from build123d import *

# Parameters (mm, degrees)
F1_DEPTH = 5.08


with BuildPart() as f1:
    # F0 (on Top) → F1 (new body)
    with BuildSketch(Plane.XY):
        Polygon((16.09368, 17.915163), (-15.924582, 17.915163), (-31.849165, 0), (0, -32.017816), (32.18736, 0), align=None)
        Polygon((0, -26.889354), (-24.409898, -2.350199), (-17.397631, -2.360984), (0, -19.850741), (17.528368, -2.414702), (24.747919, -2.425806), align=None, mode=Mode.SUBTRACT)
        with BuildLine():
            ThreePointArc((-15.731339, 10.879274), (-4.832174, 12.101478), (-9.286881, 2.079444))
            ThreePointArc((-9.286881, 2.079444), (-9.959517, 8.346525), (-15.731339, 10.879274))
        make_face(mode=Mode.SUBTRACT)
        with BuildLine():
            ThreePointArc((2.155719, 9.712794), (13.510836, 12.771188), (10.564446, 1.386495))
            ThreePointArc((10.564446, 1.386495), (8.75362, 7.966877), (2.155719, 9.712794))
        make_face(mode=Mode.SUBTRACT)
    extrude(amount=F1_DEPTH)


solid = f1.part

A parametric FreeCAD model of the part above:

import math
import FreeCAD as App
import Part
import Sketcher
Q = App.Units.Quantity


def add_polygon(sketch, points):
    """Adds a closed chain of lines whose ends are joined by coincident constraints."""
    first, n = sketch.GeometryCount, len(points)
    for a, b in zip(points, points[1:] + points[:1]):
        sketch.addGeometry(Part.LineSegment(App.Vector(*a, 0), App.Vector(*b, 0)), False)
    for i in range(n):
        sketch.addConstraint(Sketcher.Constraint("Coincident", first + i, 2, first + (i + 1) % n, 1))

doc = App.newDocument("Part")
body = doc.addObject("PartDesign::Body", "Body")

# Sketch on XY plane
sketch1 = doc.addObject("Sketcher::SketchObject", "Sketch")
body.addObject(sketch1)
sketch1.AttachmentSupport = (doc.XY_Plane, [""])
sketch1.MapMode = "FlatFace"
add_polygon(sketch1, [(16.09368, 17.915163), (-15.924582, 17.915163), (-31.849165, 0), (0, -32.017816), (32.18736, 0)])  # lines 0-4
add_polygon(sketch1, [(24.747919, -2.425806), (0, -26.889354), (-24.409898, -2.350199), (-17.397631, -2.360984), (0, -19.850741), (17.528368, -2.414702)])  # lines 5-10
sketch1.addGeometry(Part.ArcOfCircle(Part.Circle(App.Vector(-15.030851, 4.63259, 0), App.Vector(0, 0, 1), 6.285837), math.radians(-23.964737), math.radians(96.398276)), False)  # 11
sketch1.addGeometry(Part.ArcOfCircle(Part.Circle(App.Vector(-9.931513, 8.367034, 0), App.Vector(0, 0, 1), 6.320549), math.radians(-84.146232), math.radians(156.579771)), False)  # 12
sketch1.addGeometry(Part.ArcOfCircle(Part.Circle(App.Vector(3.936307, 3.101875, 0), App.Vector(0, 0, 1), 6.846514), math.radians(-14.509936), math.radians(105.07435)), False)  # 13
sketch1.addGeometry(Part.ArcOfCircle(Part.Circle(App.Vector(8.723572, 7.936532, 0), App.Vector(0, 0, 1), 6.803808), math.radians(-74.302093), math.radians(164.866507)), False)  # 14
sketch1.addConstraint(Sketcher.Constraint("Coincident", 11, 1, 12, 1))
sketch1.addConstraint(Sketcher.Constraint("Coincident", 12, 2, 11, 2))
sketch1.addConstraint(Sketcher.Constraint("Coincident", 13, 1, 14, 1))
sketch1.addConstraint(Sketcher.Constraint("Coincident", 14, 2, 13, 2))
sketch1.addConstraint(Sketcher.Constraint("Horizontal", 0))
sketch1.addConstraint(Sketcher.Constraint("PointOnObject", 1, 2, -1))
sketch1.addConstraint(Sketcher.Constraint("PointOnObject", 2, 2, -2))
sketch1.addConstraint(Sketcher.Constraint("PointOnObject", 3, 2, -1))
sketch1.addConstraint(Sketcher.Constraint("PointOnObject", 5, 2, -2))
sketch1.addConstraint(Sketcher.Constraint("PointOnObject", 8, 2, -2))
sketch1.addConstraint(Sketcher.Constraint("Radius", 12, Q("6.320549 mm")))
sketch1.addConstraint(Sketcher.Constraint("Radius", 11, Q("6.285837 mm")))
sketch1.addConstraint(Sketcher.Constraint("Radius", 13, Q("6.846514 mm")))
sketch1.addConstraint(Sketcher.Constraint("Radius", 14, Q("6.803808 mm")))
sketch1.addConstraint(Sketcher.Constraint("DistanceY", 6, 2, -1, 1, Q("2.350199 mm")))
sketch1.addConstraint(Sketcher.Constraint("DistanceY", 14, 3, 12, 3, Q("0.430502 mm")))
sketch1.addConstraint(Sketcher.Constraint("DistanceY", 10, 2, 13, 1, Q("3.812301 mm")))
sketch1.addConstraint(Sketcher.Constraint("DistanceY", 13, 1, 14, 2, Q("8.326299 mm")))
sketch1.addConstraint(Sketcher.Constraint("DistanceX", 11, 1, 14, 2, Q("11.4426 mm")))
sketch1.addConstraint(Sketcher.Constraint("Distance", 4, Q("24.08235 mm")))
sketch1.addConstraint(Sketcher.Constraint("Distance", 10, Q("7.21956 mm")))
sketch1.addConstraint(Sketcher.Constraint("DistanceX", 0, 2, 0, 1, Q("32.018262 mm")))
sketch1.addConstraint(Sketcher.Constraint("DistanceX", 11, 3, -1, 1, Q("15.030851 mm")))
sketch1.addConstraint(Sketcher.Constraint("DistanceY", -1, 1, 11, 3, Q("4.63259 mm")))
sketch1.addConstraint(Sketcher.Constraint("DistanceX", -1, 1, 14, 3, Q("8.723572 mm")))
sketch1.addConstraint(Sketcher.Constraint("DistanceY", -1, 1, 14, 3, Q("7.936532 mm")))
sketch1.addConstraint(Sketcher.Constraint("DistanceX", 0, 2, -1, 1, Q("15.924582 mm")))
sketch1.addConstraint(Sketcher.Constraint("DistanceX", -1, 1, 3, 2, Q("32.18736 mm")))
sketch1.addConstraint(Sketcher.Constraint("DistanceX", 7, 2, -1, 1, Q("17.397631 mm")))
sketch1.addConstraint(Sketcher.Constraint("DistanceY", 8, 2, -1, 1, Q("19.850741 mm")))
sketch1.addConstraint(Sketcher.Constraint("DistanceX", -1, 1, 9, 2, Q("17.528368 mm")))
sketch1.addConstraint(Sketcher.Constraint("DistanceX", 11, 1, -1, 1, Q("9.286881 mm")))
sketch1.addConstraint(Sketcher.Constraint("DistanceX", 1, 2, 12, 3, Q("21.917652 mm")))
sketch1.addConstraint(Sketcher.Constraint("DistanceY", 2, 2, 13, 3, Q("35.119691 mm")))
sketch1.addConstraint(Sketcher.Constraint("DistanceY", 5, 2, 13, 3, Q("29.991229 mm")))
sketch1.addConstraint(Sketcher.Constraint("DistanceY", 8, 2, 9, 2, Q("17.436039 mm")))
sketch1.addConstraint(Sketcher.Constraint("DistanceY", 7, 2, 11, 1, Q("4.440428 mm")))
sketch1.addConstraint(Sketcher.Constraint("Distance", 6, Q("34.612328 mm")))
pad1 = doc.addObject("PartDesign::Pad", "Pad")
body.addObject(pad1)
pad1.Profile = sketch1
pad1.Length = Q("0.2 in")

doc.recompute()
